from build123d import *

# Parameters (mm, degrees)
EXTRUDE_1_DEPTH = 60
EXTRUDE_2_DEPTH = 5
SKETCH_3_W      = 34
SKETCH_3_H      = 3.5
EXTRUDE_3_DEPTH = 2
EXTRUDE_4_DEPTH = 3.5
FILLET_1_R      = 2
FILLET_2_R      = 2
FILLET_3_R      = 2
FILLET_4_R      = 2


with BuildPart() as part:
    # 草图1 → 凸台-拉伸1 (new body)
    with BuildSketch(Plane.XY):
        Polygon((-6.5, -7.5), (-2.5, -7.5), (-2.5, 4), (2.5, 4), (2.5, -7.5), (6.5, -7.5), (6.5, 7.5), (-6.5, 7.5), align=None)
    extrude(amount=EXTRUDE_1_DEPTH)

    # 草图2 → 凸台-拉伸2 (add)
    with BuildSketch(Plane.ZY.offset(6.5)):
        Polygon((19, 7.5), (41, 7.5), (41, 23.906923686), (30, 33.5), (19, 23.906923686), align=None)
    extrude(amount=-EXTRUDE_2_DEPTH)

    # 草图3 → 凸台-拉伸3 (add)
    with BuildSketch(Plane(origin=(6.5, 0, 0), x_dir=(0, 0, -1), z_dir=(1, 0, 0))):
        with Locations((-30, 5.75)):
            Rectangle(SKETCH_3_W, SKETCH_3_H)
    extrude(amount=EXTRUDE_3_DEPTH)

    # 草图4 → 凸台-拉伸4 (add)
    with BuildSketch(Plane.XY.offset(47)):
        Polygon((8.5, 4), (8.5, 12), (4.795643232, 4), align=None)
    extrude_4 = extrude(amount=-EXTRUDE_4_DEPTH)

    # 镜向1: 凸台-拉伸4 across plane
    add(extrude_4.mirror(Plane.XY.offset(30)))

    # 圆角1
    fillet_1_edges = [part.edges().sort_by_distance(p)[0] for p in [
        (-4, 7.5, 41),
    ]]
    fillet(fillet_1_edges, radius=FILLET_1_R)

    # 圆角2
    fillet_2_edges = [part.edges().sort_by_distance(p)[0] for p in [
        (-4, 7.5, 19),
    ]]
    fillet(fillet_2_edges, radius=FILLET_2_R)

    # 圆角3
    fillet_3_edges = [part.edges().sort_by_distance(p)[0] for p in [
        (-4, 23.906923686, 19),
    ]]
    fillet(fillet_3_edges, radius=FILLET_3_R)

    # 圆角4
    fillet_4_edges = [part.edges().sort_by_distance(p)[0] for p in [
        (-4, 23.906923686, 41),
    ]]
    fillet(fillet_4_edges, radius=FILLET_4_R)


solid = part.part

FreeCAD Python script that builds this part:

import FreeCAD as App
import Part
import Sketcher
from FreeCAD import Vector
Q = App.Units.Quantity


def edges_at(feature, points):
    """Names of the edges that pass closest to the given points."""
    edges = feature.Shape.Edges
    near = lambda p: min(range(len(edges)), key=lambda i: edges[i].distToShape(Part.Vertex(*p))[0])
    return sorted({f"Edge{near(p) + 1}" for p in points})

doc = App.newDocument("Part")
body = doc.addObject("PartDesign::Body", "Body")

sketch1 = body.newObject("Sketcher::SketchObject", "Sketch")
sketch1.AttachmentSupport = (doc.getObject("XY_Plane"), [""])
sketch1.MapMode = "FlatFace"
sketch1.addGeometry(Part.LineSegment(Vector(-6.5, -7.5, 0), Vector(-2.5, -7.5, 0)), False)
sketch1.addGeometry(Part.LineSegment(Vector(-2.5, -7.5, 0), Vector(-2.5, 4, 0)), False)
sketch1.addGeometry(Part.LineSegment(Vector(-2.5, 4, 0), Vector(2.5, 4, 0)), False)
sketch1.addGeometry(Part.LineSegment(Vector(2.5, 4, 0), Vector(2.5, -7.5, 0)), False)
sketch1.addGeometry(Part.LineSegment(Vector(2.5, -7.5, 0), Vector(6.5, -7.5, 0)), False)
sketch1.addGeometry(Part.LineSegment(Vector(6.5, -7.5, 0), Vector(6.5, 7.5, 0)), False)
sketch1.addGeometry(Part.LineSegment(Vector(6.5, 7.5, 0), Vector(-6.5, 7.5, 0)), False)
sketch1.addGeometry(Part.LineSegment(Vector(-6.5, 7.5, 0), Vector(-6.5, -7.5, 0)), False)
sketch1.addConstraint(Sketcher.Constraint("Coincident", 0, 2, 1, 1))
sketch1.addConstraint(Sketcher.Constraint("Coincident", 1, 2, 2, 1))
sketch1.addConstraint(Sketcher.Constraint("Coincident", 2, 2, 3, 1))
sketch1.addConstraint(Sketcher.Constraint("Coincident", 3, 2, 4, 1))
sketch1.addConstraint(Sketcher.Constraint("Coincident", 4, 2, 5, 1))
sketch1.addConstraint(Sketcher.Constraint("Coincident", 5, 2, 6, 1))
sketch1.addConstraint(Sketcher.Constraint("Coincident", 6, 2, 7, 1))
sketch1.addConstraint(Sketcher.Constraint("Coincident", 7, 2, 0, 1))
sketch1.addConstraint(Sketcher.Constraint("Horizontal", 0))
sketch1.addConstraint(Sketcher.Constraint("Vertical", 1))
sketch1.addConstraint(Sketcher.Constraint("Horizontal", 2))
sketch1.addConstraint(Sketcher.Constraint("Vertical", 3))
sketch1.addConstraint(Sketcher.Constraint("Horizontal", 4))
sketch1.addConstraint(Sketcher.Constraint("Vertical", 5))
sketch1.addConstraint(Sketcher.Constraint("Horizontal", 6))
sketch1.addConstraint(Sketcher.Constraint("Vertical", 7))
sketch1.addConstraint(Sketcher.Constraint("Symmetric", 4, 2, 6, 2, -1, 1))
sketch1.addConstraint(Sketcher.Constraint("Symmetric", 0, 2, 3, 2, -2))
sketch1.addConstraint(Sketcher.Constraint("DistanceX", 0, 1, 0, 2, Q("4 mm")))
sketch1.addConstraint(Sketcher.Constraint("DistanceX", 2, 1, 2, 2, Q("5 mm")))
sketch1.addConstraint(Sketcher.Constraint("DistanceY", 5, 1, 5, 2, Q("15 mm")))
sketch1.addConstraint(Sketcher.Constraint("DistanceY", 1, 1, 1, 2, Q("11.5 mm")))
pad1 = body.newObject("PartDesign::Pad", "Pad")
pad1.Profile = sketch1
pad1.Length = 60

sketch2 = body.newObject("Sketcher::SketchObject", "Sketch001")
sketch2.AttachmentSupport = (doc.getObject("YZ_Plane"), [""])
sketch2.MapMode = "FlatFace"
sketch2.AttachmentOffset = App.Placement(Vector(0, 0, -6.5), App.Rotation())
sketch2.addGeometry(Part.LineSegment(Vector(8, 19, 0), Vector(8, 41, 0)), False)
sketch2.addGeometry(Part.LineSegment(Vector(8, 41, 0), Vector(24, 41, 0)), False)
sketch2.addGeometry(Part.LineSegment(Vector(24, 41, 0), Vector(34, 30, 0)), False)
sketch2.addGeometry(Part.LineSegment(Vector(34, 30, 0), Vector(24, 19, 0)), False)
sketch2.addGeometry(Part.LineSegment(Vector(24, 19, 0), Vector(8, 19, 0)), False)
sketch2.addConstraint(Sketcher.Constraint("Coincident", 0, 2, 1, 1))
sketch2.addConstraint(Sketcher.Constraint("Coincident", 1, 2, 2, 1))
sketch2.addConstraint(Sketcher.Constraint("Coincident", 2, 2, 3, 1))
sketch2.addConstraint(Sketcher.Constraint("Coincident", 3, 2, 4, 1))
sketch2.addConstraint(Sketcher.Constraint("Coincident", 4, 2, 0, 1))
sketch2.addConstraint(Sketcher.Constraint("Vertical", 0))
sketch2.addConstraint(Sketcher.Constraint("Horizontal", 1))
sketch2.addConstraint(Sketcher.Constraint("Horizontal", 4))
sketch2.addConstraint(Sketcher.Constraint("Vertical", 1, 2, 3, 2))
sketch2.addConstraint(Sketcher.Constraint("Equal", 2, 3))
sketch2.addConstraint(Sketcher.Constraint("DistanceY", 0, 1, 0, 2, Q("22 mm")))
sketch2.addConstraint(Sketcher.Constraint("DistanceY", -1, 1, 0, 2, Q("41 mm")))
sketch2.addConstraint(Sketcher.Constraint("DistanceX", 0, 2, 2, 2, Q("26 mm")))
sketch2.addConstraint(Sketcher.Constraint("DistanceX", -1, 1, 0, 2, Q("7.5 mm")))
sketch2.addConstraint(Sketcher.Constraint("Distance", 2, Q("14.595448 mm")))
pad2 = body.newObject("PartDesign::Pad", "Pad001")
pad2.Profile = sketch2
pad2.Length = 5

sketch3 = body.newObject("Sketcher::SketchObject", "Sketch002")
sketch3.AttachmentSupport = (doc.getObject("YZ_Plane"), [""])
sketch3.MapMode = "FlatFace"
sketch3.AttachmentOffset = App.Placement(Vector(0, 0, 6.5), App.Rotation())
sketch3.addGeometry(Part.LineSegment(Vector(7.5, 47, 0), Vector(4, 47, 0)), False)
sketch3.addGeometry(Part.LineSegment(Vector(4, 47, 0), Vector(4, 13, 0)), False)
sketch3.addGeometry(Part.LineSegment(Vector(4, 13, 0), Vector(7.5, 13, 0)), False)
sketch3.addGeometry(Part.LineSegment(Vector(7.5, 13, 0), Vector(7.5, 47, 0)), False)
sketch3.addConstraint(Sketcher.Constraint("Coincident", 0, 2, 1, 1))
sketch3.addConstraint(Sketcher.Constraint("Coincident", 1, 2, 2, 1))
sketch3.addConstraint(Sketcher.Constraint("Coincident", 2, 2, 3, 1))
sketch3.addConstraint(Sketcher.Constraint("Coincident", 3, 2, 0, 1))
sketch3.addConstraint(Sketcher.Constraint("Horizontal", 0))
sketch3.addConstraint(Sketcher.Constraint("Vertical", 1))
sketch3.addConstraint(Sketcher.Constraint("Horizontal", 2))
sketch3.addConstraint(Sketcher.Constraint("Vertical", 3))
sketch3.addConstraint(Sketcher.Constraint("DistanceY", 1, 2, 1, 1, Q("34 mm")))
sketch3.addConstraint(Sketcher.Constraint("DistanceX", 0, 2, 0, 1, Q("3.5 mm")))
sketch3.addConstraint(Sketcher.Constraint("DistanceX", -1, 1, 0, 2, Q("4 mm")))
sketch3.addConstraint(Sketcher.Constraint("DistanceY", -1, 1, 0, 2, Q("47 mm")))
pad3 = body.newObject("PartDesign::Pad", "Pad002")
pad3.Profile = sketch3
pad3.Length = 2

sketch4 = body.newObject("Sketcher::SketchObject", "Sketch003")
sketch4.AttachmentSupport = (doc.getObject("XY_Plane"), [""])
sketch4.MapMode = "FlatFace"
sketch4.AttachmentOffset = App.Placement(Vector(0, 0, 47), App.Rotation())
sketch4.addGeometry(Part.LineSegment(Vector(8.5, 4, 0), Vector(8.5, 12, 0)), False)
sketch4.addGeometry(Part.LineSegment(Vector(8.5, 12, 0), Vector(4.8, 4, 0)), False)
sketch4.addGeometry(Part.LineSegment(Vector(4.8, 4, 0), Vector(8.5, 4, 0)), False)
sketch4.addConstraint(Sketcher.Constraint("Coincident", 0, 2, 1, 1))
sketch4.addConstraint(Sketcher.Constraint("Coincident", 1, 2, 2, 1))
sketch4.addConstraint(Sketcher.Constraint("Coincident", 2, 2, 0, 1))
sketch4.addConstraint(Sketcher.Constraint("Vertical", 0))
sketch4.addConstraint(Sketcher.Constraint("Horizontal", 2))
sketch4.addConstraint(Sketcher.Constraint("DistanceY", 0, 1, 0, 2, Q("8 mm")))
sketch4.addConstraint(Sketcher.Constraint("DistanceY", -1, 1, 0, 2, Q("12 mm")))
sketch4.addConstraint(Sketcher.Constraint("DistanceX", -1, 1, 0, 2, Q("8.5 mm")))
sketch4.addConstraint(Sketcher.Constraint("DistanceX", 2, 1, 2, 2, Q("3.704357 mm")))
pad4 = body.newObject("PartDesign::Pad", "Pad003")
pad4.Profile = sketch4
pad4.Length = 3.5
pad4.Reversed = True
doc.recompute()

datumplane = body.newObject("PartDesign::Plane", "DatumPlane")
datumplane.AttachmentSupport = (doc.getObject("XY_Plane"), [""])
datumplane.MapMode = "FlatFace"
datumplane.AttachmentOffset = App.Placement(Vector(0, 0, 30), App.Rotation())
mirrored = body.newObject("PartDesign::Mirrored", "Mirrored")
mirrored.Originals = [pad4]
mirrored.MirrorPlane = (datumplane, [""])
body.Tip = mirrored
doc.recompute()

fillet = body.newObject("PartDesign::Fillet", "Fillet")
fillet.Base = (mirrored, edges_at(mirrored, [(-4, 7.5, 41)]))
fillet.Radius = 2
doc.recompute()

fillet2 = body.newObject("PartDesign::Fillet", "Fillet001")
fillet2.Base = (fillet, edges_at(fillet, [(-4, 7.5, 19)]))
fillet2.Radius = 2
doc.recompute()

fillet3 = body.newObject("PartDesign::Fillet", "Fillet002")
fillet3.Base = (fillet2, edges_at(fillet2, [(-4, 23.907, 19)]))
fillet3.Radius = 2
doc.recompute()

fillet4 = body.newObject("PartDesign::Fillet", "Fillet003")
fillet4.Base = (fillet3, edges_at(fillet3, [(-4, 23.907, 41)]))
fillet4.Radius = 2

doc.recompute()
